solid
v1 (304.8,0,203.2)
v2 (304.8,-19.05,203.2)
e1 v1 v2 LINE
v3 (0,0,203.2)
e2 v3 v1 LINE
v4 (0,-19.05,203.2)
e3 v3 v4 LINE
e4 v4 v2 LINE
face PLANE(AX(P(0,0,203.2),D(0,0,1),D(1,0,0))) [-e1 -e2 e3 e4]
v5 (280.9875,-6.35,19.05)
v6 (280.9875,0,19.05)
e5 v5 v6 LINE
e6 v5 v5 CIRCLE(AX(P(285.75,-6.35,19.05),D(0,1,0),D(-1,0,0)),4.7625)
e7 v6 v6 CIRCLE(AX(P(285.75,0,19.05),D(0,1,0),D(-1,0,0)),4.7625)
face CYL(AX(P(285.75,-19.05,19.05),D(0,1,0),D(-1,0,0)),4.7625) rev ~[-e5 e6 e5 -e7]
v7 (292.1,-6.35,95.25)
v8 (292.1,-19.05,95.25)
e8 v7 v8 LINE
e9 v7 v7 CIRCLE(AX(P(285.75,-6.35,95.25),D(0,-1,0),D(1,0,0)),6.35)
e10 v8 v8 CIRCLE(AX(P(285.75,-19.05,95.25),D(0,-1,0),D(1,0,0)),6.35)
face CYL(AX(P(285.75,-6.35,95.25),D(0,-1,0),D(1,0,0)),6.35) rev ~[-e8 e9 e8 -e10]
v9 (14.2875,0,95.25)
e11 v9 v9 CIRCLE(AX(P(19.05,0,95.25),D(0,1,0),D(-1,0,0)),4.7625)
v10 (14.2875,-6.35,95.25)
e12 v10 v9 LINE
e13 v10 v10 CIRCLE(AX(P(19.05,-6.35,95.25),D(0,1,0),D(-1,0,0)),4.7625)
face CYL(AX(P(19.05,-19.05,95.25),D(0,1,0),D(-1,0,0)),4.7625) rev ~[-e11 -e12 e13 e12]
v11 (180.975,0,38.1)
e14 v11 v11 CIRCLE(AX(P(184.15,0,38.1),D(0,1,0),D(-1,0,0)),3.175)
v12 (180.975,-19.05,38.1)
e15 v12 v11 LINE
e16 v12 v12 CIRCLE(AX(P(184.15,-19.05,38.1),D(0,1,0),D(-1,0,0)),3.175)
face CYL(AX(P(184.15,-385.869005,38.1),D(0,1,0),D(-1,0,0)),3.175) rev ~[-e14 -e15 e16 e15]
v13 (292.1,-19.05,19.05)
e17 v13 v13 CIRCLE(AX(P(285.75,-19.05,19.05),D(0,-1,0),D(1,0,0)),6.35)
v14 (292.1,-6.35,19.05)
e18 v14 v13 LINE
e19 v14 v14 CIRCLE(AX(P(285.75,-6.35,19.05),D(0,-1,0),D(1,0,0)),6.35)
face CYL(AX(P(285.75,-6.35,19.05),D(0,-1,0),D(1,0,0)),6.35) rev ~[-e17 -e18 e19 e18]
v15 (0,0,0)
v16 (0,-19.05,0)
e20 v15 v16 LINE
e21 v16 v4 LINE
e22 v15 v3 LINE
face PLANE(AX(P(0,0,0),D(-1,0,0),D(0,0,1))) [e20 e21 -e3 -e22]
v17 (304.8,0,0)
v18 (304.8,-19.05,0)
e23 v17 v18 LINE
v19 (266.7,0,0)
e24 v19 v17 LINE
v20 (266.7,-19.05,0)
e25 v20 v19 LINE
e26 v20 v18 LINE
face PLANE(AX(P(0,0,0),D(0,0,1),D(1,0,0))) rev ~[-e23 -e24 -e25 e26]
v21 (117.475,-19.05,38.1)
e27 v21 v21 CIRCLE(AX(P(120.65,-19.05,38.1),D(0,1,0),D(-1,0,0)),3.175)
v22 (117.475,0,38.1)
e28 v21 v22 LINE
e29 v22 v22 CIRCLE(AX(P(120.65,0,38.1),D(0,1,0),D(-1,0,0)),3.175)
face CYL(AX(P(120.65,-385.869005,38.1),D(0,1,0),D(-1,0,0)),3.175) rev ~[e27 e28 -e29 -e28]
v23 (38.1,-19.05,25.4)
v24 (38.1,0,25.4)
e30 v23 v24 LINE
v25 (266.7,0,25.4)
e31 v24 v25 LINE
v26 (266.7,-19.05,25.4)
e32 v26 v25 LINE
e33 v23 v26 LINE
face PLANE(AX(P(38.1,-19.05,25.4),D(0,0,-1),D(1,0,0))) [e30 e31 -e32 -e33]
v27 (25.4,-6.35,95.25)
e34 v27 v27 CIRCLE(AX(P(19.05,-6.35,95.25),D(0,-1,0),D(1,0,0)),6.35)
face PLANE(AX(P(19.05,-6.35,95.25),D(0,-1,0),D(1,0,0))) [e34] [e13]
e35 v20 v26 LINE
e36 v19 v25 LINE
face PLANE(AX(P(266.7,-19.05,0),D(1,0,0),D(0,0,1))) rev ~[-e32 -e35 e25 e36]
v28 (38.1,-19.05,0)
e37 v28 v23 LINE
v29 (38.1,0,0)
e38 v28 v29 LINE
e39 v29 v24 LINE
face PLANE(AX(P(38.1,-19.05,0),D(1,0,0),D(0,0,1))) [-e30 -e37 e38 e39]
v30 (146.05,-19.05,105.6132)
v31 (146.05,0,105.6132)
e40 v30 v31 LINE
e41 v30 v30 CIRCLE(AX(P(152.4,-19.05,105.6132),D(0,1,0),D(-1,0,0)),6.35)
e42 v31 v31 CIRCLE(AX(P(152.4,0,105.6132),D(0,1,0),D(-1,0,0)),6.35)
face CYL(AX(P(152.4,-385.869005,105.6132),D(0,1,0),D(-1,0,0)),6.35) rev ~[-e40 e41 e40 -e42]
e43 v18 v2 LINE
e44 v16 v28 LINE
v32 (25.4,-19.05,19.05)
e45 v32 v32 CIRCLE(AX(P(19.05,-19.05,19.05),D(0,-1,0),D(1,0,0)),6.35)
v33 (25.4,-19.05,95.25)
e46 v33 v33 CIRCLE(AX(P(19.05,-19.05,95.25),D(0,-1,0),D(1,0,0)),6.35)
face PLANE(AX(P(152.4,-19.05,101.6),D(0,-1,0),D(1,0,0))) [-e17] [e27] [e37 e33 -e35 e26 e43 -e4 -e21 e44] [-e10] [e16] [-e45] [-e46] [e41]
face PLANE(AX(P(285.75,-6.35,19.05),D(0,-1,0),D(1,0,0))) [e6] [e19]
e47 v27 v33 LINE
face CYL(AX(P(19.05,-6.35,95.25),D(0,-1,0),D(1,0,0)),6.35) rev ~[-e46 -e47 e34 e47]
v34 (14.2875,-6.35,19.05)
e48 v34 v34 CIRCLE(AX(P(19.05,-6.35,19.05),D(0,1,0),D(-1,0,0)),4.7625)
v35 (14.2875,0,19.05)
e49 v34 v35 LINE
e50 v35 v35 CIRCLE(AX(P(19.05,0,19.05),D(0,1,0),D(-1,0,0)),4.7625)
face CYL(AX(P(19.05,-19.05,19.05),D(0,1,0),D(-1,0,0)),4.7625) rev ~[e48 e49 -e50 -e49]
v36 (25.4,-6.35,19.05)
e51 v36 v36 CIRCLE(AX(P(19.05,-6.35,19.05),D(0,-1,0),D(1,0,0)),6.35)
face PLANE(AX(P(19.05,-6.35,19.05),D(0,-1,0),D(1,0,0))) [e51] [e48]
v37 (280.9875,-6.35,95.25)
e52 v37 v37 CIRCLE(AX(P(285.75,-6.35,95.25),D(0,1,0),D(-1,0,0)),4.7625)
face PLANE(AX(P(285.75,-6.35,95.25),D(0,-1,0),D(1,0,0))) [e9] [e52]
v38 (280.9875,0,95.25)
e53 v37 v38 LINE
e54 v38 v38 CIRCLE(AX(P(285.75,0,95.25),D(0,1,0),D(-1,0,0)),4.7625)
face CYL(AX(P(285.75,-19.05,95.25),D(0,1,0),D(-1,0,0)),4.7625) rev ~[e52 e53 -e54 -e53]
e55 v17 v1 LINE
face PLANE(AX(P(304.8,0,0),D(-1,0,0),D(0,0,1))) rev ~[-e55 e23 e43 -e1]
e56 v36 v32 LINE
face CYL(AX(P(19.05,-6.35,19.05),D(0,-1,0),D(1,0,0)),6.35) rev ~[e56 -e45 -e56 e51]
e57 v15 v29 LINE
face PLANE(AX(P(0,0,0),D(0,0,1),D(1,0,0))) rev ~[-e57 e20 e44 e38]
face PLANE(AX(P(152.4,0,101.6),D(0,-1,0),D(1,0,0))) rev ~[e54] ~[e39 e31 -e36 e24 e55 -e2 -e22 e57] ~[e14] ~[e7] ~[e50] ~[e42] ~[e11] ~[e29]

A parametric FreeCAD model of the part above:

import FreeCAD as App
import Part
import Sketcher
Q = App.Units.Quantity


def add_polygon(sketch, points):
    """Adds a closed chain of lines whose ends are joined by coincident constraints."""
    first, n = sketch.GeometryCount, len(points)
    for a, b in zip(points, points[1:] + points[:1]):
        sketch.addGeometry(Part.LineSegment(App.Vector(*a, 0), App.Vector(*b, 0)), False)
    for i in range(n):
        sketch.addConstraint(Sketcher.Constraint("Coincident", first + i, 2, first + (i + 1) % n, 1))

doc = App.newDocument("Part")
body = doc.addObject("PartDesign::Body", "Body")

# Sketch on XZ plane
sketch1 = doc.addObject("Sketcher::SketchObject", "Sketch")
body.addObject(sketch1)
sketch1.AttachmentSupport = (doc.XZ_Plane, [""])
sketch1.MapMode = "FlatFace"
add_polygon(sketch1, [(0, 203), (0, 0), (305, 0), (305, 203)])  # lines 0-3
sketch1.addConstraint([
    Sketcher.Constraint("Vertical", 0),
    Sketcher.Constraint("Horizontal", 1),
    Sketcher.Constraint("Vertical", 2),
    Sketcher.Constraint("Horizontal", 3),
    Sketcher.Constraint("Coincident", 0, 2, -1, 1),
    Sketcher.Constraint("DistanceX", 1, 1, 1, 2, Q("12 in")),
    Sketcher.Constraint("DistanceY", 0, 2, 0, 1, Q("8 in")),
])
pad1 = doc.addObject("PartDesign::Pad", "Pad")
body.addObject(pad1)
pad1.Profile = sketch1
pad1.Length = Q("0.75 in")

# Sketch on XZ plane
sketch2 = doc.addObject("Sketcher::SketchObject", "Sketch001")
body.addObject(sketch2)
sketch2.AttachmentSupport = (doc.XZ_Plane, [""])
sketch2.MapMode = "FlatFace"
sketch2.AttachmentOffset = App.Placement(App.Vector(0, 0, 0.75 * 25.4), App.Rotation())
add_polygon(sketch2, [(38, 25), (38, 0), (267, 0), (267, 25)])  # lines 0-3
sketch2.addConstraint([
    Sketcher.Constraint("Vertical", 0),
    Sketcher.Constraint("Horizontal", 1),
    Sketcher.Constraint("Vertical", 2),
    Sketcher.Constraint("Horizontal", 3),
    Sketcher.Constraint("PointOnObject", 0, 2, -1),
    Sketcher.Constraint("DistanceX", 1, 1, 1, 2, Q("9 in")),
    Sketcher.Constraint("DistanceY", 0, 2, 0, 1, Q("1 in")),
    Sketcher.Constraint("DistanceX", -1, 1, 0, 2, Q("1.5 in")),
])
pocket1 = doc.addObject("PartDesign::Pocket", "Pocket")
body.addObject(pocket1)
pocket1.Profile = sketch2
pocket1.Type = "ThroughAll"

# Sketch on XZ plane
sketch3 = doc.addObject("Sketcher::SketchObject", "Sketch002")
body.addObject(sketch3)
sketch3.AttachmentSupport = (doc.XZ_Plane, [""])
sketch3.MapMode = "FlatFace"
sketch3.AttachmentOffset = App.Placement(App.Vector(0, 0, 0.75 * 25.4), App.Rotation())
sketch3.addGeometry([
    Part.Circle(App.Vector(120.7, 38.1, 0), App.Vector(0, 0, 1), 3.2),
    Part.Circle(App.Vector(184.2, 38.1, 0), App.Vector(0, 0, 1), 3.2),
], False)
sketch3.addConstraint([
    Sketcher.Constraint("Equal", 0, 1),
    Sketcher.Constraint("Horizontal", 0, 3, 1, 3),
    Sketcher.Constraint("Diameter", 0, Q("0.25 in")),
    Sketcher.Constraint("DistanceY", -1, 1, 0, 3, Q("1.5 in")),
    Sketcher.Constraint("DistanceX", 0, 3, 1, 3, Q("2.5 in")),
    Sketcher.Constraint("DistanceX", -1, 1, 0, 3, Q("4.75 in")),
])
doc.recompute()
hole = doc.addObject("PartDesign::Hole", "Hole")
body.addObject(hole)
hole.Profile = sketch3
hole.ThreadType = "None"
hole.Diameter = Q("0.25 in")
hole.DepthType = "ThroughAll"

# Sketch on XZ plane
sketch4 = doc.addObject("Sketcher::SketchObject", "Sketch003")
body.addObject(sketch4)
sketch4.AttachmentSupport = (doc.XZ_Plane, [""])
sketch4.MapMode = "FlatFace"
sketch4.AttachmentOffset = App.Placement(App.Vector(0, 0, 0.75 * 25.4), App.Rotation())
sketch4.addGeometry(Part.Circle(App.Vector(152, 106, 0), App.Vector(0, 0, 1), 6), False)
sketch4.addConstraint([
    Sketcher.Constraint("Diameter", 0, Q("0.5 in")),
    Sketcher.Constraint("DistanceX", -1, 1, 0, 3, Q("6 in")),
    Sketcher.Constraint("DistanceY", -1, 1, 0, 3, Q("4.158 in")),
])
doc.recompute()
hole2 = doc.addObject("PartDesign::Hole", "Hole001")
body.addObject(hole2)
hole2.Profile = sketch4
hole2.ThreadType = "None"
hole2.Diameter = Q("0.5 in")
hole2.DepthType = "ThroughAll"

# Sketch on XZ plane
sketch5 = doc.addObject("Sketcher::SketchObject", "Sketch004")
body.addObject(sketch5)
sketch5.AttachmentSupport = (doc.XZ_Plane, [""])
sketch5.MapMode = "FlatFace"
sketch5.AttachmentOffset = App.Placement(App.Vector(0, 0, 0.75 * 25.4), App.Rotation())
sketch5.addGeometry([
    Part.Circle(App.Vector(19.1, 19.1, 0), App.Vector(0, 0, 1), 4.8),
    Part.Circle(App.Vector(19.1, 95.2, 0), App.Vector(0, 0, 1), 4.8),
    Part.Circle(App.Vector(285.8, 19.1, 0), App.Vector(0, 0, 1), 4.8),
    Part.Circle(App.Vector(285.8, 95.2, 0), App.Vector(0, 0, 1), 4.8),
], False)
sketch5.addConstraint([
    Sketcher.Constraint("Equal", 0, 1),
    Sketcher.Constraint("Equal", 1, 2),
    Sketcher.Constraint("Equal", 2, 3),
    Sketcher.Constraint("Horizontal", 0, 3, 2, 3),
    Sketcher.Constraint("Horizontal", 1, 3, 3, 3),
    Sketcher.Constraint("Vertical", 0, 3, 1, 3),
    Sketcher.Constraint("Vertical", 2, 3, 3, 3),
    Sketcher.Constraint("Diameter", 0, Q("0.375 in")),
    Sketcher.Constraint("DistanceY", 0, 3, 1, 3, Q("3 in")),
    Sketcher.Constraint("DistanceX", 0, 3, 2, 3, Q("10.5 in")),
    Sketcher.Constraint("DistanceX", -1, 1, 0, 3, Q("0.75 in")),
    Sketcher.Constraint("DistanceY", -1, 1, 0, 3, Q("0.75 in")),
])
doc.recompute()
hole3 = doc.addObject("PartDesign::Hole", "Hole002")
body.addObject(hole3)
hole3.Profile = sketch5
hole3.ThreadType = "None"
hole3.Diameter = Q("0.375 in")
hole3.DepthType = "ThroughAll"
hole3.HoleCutType = "Counterbore"
hole3.HoleCutDiameter = Q("0.5 in")
hole3.HoleCutDepth = Q("0.5 in")

doc.recompute()
